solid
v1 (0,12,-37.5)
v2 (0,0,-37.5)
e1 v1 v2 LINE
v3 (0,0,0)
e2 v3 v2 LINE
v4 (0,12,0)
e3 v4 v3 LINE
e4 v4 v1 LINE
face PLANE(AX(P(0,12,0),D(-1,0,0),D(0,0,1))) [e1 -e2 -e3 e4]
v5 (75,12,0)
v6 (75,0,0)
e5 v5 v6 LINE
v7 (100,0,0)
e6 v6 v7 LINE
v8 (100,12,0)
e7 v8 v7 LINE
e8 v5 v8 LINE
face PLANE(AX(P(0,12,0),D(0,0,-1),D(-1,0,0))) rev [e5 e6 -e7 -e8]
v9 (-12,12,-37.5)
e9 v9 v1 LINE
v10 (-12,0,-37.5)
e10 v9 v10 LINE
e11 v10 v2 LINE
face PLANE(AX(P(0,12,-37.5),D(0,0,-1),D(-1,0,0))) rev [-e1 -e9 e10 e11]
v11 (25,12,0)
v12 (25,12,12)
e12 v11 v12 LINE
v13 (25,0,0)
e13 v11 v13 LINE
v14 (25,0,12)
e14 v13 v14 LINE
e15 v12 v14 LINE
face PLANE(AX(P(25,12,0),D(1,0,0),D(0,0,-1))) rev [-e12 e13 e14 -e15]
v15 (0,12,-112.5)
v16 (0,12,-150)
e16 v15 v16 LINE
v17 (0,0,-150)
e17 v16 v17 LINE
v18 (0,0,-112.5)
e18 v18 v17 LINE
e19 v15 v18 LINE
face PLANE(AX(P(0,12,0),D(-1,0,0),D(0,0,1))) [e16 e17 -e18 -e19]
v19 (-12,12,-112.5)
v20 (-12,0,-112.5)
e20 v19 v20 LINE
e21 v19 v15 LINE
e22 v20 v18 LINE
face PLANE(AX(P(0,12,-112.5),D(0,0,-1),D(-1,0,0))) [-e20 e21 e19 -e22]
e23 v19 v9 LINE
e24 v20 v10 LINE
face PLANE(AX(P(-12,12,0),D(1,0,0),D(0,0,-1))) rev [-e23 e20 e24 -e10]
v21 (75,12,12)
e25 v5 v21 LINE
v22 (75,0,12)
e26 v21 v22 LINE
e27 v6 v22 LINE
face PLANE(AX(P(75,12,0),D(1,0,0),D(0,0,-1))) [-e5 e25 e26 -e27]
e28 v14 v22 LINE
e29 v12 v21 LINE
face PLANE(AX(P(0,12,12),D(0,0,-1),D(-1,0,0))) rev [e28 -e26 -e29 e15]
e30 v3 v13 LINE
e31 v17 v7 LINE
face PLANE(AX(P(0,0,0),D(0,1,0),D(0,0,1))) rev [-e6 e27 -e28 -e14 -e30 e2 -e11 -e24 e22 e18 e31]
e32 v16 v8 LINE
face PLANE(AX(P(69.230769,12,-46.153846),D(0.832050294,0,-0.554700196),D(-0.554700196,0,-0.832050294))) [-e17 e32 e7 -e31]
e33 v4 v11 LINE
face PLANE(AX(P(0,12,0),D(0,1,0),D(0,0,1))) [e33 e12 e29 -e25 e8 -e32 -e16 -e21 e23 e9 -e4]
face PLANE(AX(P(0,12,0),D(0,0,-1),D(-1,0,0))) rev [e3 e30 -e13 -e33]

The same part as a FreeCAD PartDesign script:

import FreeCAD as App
import Part
import Sketcher

V = App.Vector
Q = App.Units.Quantity


def add_polygon(sketch, points):
    """Adds a closed chain of lines whose ends are joined by coincident constraints."""
    first, n = sketch.GeometryCount, len(points)
    for a, b in zip(points, points[1:] + points[:1]):
        sketch.addGeometry(Part.LineSegment(App.Vector(*a, 0), App.Vector(*b, 0)), False)
    for i in range(n):
        sketch.addConstraint(Sketcher.Constraint("Coincident", first + i, 2, first + (i + 1) % n, 1))

doc = App.newDocument("Part")
body = doc.addObject("PartDesign::Body", "Body")

sketch1 = body.newObject("Sketcher::SketchObject", "Sketch")
sketch1.AttachmentSupport = (doc.getObject("XZ_Plane"), [""])
sketch1.MapMode = "FlatFace"
add_polygon(sketch1, [(-12, -112), (-12, -38), (0, -38), (0, 0), (25, 0), (25, 12), (75, 12), (75, 0), (100, 0), (0, -150), (0, -112)])
sketch1.addConstraint([
    Sketcher.Constraint("Vertical", 0),
    Sketcher.Constraint("Horizontal", 1),
    Sketcher.Constraint("Vertical", 2),
    Sketcher.Constraint("Horizontal", 3),
    Sketcher.Constraint("Vertical", 4),
    Sketcher.Constraint("Horizontal", 5),
    Sketcher.Constraint("Vertical", 6),
    Sketcher.Constraint("Horizontal", 7),
    Sketcher.Constraint("Vertical", 9),
    Sketcher.Constraint("Horizontal", 10),
    Sketcher.Constraint("Coincident", 2, 2, -1, 1),
    Sketcher.Constraint("PointOnObject", 6, 2, -1),
    Sketcher.Constraint("PointOnObject", 8, 2, -2),
    Sketcher.Constraint("Equal", 3, 7),
    Sketcher.Constraint("Equal", 10, 4),
    Sketcher.Constraint("Equal", 2, 9),
    Sketcher.Constraint("DistanceX", 1, 1, 1, 2, Q("12 mm")),
    Sketcher.Constraint("DistanceX", 3, 1, 3, 2, Q("25 mm")),
    Sketcher.Constraint("DistanceX", 5, 1, 5, 2, Q("50 mm")),
    Sketcher.Constraint("DistanceY", 0, 1, 0, 2, Q("75 mm")),
    Sketcher.Constraint("DistanceY", 2, 1, 2, 2, Q("37.5 mm")),
])
pad1 = body.newObject("PartDesign::Pad", "Pad")
pad1.Profile = sketch1
pad1.Length = 12
pad1.Reversed = True

doc.recompute()
